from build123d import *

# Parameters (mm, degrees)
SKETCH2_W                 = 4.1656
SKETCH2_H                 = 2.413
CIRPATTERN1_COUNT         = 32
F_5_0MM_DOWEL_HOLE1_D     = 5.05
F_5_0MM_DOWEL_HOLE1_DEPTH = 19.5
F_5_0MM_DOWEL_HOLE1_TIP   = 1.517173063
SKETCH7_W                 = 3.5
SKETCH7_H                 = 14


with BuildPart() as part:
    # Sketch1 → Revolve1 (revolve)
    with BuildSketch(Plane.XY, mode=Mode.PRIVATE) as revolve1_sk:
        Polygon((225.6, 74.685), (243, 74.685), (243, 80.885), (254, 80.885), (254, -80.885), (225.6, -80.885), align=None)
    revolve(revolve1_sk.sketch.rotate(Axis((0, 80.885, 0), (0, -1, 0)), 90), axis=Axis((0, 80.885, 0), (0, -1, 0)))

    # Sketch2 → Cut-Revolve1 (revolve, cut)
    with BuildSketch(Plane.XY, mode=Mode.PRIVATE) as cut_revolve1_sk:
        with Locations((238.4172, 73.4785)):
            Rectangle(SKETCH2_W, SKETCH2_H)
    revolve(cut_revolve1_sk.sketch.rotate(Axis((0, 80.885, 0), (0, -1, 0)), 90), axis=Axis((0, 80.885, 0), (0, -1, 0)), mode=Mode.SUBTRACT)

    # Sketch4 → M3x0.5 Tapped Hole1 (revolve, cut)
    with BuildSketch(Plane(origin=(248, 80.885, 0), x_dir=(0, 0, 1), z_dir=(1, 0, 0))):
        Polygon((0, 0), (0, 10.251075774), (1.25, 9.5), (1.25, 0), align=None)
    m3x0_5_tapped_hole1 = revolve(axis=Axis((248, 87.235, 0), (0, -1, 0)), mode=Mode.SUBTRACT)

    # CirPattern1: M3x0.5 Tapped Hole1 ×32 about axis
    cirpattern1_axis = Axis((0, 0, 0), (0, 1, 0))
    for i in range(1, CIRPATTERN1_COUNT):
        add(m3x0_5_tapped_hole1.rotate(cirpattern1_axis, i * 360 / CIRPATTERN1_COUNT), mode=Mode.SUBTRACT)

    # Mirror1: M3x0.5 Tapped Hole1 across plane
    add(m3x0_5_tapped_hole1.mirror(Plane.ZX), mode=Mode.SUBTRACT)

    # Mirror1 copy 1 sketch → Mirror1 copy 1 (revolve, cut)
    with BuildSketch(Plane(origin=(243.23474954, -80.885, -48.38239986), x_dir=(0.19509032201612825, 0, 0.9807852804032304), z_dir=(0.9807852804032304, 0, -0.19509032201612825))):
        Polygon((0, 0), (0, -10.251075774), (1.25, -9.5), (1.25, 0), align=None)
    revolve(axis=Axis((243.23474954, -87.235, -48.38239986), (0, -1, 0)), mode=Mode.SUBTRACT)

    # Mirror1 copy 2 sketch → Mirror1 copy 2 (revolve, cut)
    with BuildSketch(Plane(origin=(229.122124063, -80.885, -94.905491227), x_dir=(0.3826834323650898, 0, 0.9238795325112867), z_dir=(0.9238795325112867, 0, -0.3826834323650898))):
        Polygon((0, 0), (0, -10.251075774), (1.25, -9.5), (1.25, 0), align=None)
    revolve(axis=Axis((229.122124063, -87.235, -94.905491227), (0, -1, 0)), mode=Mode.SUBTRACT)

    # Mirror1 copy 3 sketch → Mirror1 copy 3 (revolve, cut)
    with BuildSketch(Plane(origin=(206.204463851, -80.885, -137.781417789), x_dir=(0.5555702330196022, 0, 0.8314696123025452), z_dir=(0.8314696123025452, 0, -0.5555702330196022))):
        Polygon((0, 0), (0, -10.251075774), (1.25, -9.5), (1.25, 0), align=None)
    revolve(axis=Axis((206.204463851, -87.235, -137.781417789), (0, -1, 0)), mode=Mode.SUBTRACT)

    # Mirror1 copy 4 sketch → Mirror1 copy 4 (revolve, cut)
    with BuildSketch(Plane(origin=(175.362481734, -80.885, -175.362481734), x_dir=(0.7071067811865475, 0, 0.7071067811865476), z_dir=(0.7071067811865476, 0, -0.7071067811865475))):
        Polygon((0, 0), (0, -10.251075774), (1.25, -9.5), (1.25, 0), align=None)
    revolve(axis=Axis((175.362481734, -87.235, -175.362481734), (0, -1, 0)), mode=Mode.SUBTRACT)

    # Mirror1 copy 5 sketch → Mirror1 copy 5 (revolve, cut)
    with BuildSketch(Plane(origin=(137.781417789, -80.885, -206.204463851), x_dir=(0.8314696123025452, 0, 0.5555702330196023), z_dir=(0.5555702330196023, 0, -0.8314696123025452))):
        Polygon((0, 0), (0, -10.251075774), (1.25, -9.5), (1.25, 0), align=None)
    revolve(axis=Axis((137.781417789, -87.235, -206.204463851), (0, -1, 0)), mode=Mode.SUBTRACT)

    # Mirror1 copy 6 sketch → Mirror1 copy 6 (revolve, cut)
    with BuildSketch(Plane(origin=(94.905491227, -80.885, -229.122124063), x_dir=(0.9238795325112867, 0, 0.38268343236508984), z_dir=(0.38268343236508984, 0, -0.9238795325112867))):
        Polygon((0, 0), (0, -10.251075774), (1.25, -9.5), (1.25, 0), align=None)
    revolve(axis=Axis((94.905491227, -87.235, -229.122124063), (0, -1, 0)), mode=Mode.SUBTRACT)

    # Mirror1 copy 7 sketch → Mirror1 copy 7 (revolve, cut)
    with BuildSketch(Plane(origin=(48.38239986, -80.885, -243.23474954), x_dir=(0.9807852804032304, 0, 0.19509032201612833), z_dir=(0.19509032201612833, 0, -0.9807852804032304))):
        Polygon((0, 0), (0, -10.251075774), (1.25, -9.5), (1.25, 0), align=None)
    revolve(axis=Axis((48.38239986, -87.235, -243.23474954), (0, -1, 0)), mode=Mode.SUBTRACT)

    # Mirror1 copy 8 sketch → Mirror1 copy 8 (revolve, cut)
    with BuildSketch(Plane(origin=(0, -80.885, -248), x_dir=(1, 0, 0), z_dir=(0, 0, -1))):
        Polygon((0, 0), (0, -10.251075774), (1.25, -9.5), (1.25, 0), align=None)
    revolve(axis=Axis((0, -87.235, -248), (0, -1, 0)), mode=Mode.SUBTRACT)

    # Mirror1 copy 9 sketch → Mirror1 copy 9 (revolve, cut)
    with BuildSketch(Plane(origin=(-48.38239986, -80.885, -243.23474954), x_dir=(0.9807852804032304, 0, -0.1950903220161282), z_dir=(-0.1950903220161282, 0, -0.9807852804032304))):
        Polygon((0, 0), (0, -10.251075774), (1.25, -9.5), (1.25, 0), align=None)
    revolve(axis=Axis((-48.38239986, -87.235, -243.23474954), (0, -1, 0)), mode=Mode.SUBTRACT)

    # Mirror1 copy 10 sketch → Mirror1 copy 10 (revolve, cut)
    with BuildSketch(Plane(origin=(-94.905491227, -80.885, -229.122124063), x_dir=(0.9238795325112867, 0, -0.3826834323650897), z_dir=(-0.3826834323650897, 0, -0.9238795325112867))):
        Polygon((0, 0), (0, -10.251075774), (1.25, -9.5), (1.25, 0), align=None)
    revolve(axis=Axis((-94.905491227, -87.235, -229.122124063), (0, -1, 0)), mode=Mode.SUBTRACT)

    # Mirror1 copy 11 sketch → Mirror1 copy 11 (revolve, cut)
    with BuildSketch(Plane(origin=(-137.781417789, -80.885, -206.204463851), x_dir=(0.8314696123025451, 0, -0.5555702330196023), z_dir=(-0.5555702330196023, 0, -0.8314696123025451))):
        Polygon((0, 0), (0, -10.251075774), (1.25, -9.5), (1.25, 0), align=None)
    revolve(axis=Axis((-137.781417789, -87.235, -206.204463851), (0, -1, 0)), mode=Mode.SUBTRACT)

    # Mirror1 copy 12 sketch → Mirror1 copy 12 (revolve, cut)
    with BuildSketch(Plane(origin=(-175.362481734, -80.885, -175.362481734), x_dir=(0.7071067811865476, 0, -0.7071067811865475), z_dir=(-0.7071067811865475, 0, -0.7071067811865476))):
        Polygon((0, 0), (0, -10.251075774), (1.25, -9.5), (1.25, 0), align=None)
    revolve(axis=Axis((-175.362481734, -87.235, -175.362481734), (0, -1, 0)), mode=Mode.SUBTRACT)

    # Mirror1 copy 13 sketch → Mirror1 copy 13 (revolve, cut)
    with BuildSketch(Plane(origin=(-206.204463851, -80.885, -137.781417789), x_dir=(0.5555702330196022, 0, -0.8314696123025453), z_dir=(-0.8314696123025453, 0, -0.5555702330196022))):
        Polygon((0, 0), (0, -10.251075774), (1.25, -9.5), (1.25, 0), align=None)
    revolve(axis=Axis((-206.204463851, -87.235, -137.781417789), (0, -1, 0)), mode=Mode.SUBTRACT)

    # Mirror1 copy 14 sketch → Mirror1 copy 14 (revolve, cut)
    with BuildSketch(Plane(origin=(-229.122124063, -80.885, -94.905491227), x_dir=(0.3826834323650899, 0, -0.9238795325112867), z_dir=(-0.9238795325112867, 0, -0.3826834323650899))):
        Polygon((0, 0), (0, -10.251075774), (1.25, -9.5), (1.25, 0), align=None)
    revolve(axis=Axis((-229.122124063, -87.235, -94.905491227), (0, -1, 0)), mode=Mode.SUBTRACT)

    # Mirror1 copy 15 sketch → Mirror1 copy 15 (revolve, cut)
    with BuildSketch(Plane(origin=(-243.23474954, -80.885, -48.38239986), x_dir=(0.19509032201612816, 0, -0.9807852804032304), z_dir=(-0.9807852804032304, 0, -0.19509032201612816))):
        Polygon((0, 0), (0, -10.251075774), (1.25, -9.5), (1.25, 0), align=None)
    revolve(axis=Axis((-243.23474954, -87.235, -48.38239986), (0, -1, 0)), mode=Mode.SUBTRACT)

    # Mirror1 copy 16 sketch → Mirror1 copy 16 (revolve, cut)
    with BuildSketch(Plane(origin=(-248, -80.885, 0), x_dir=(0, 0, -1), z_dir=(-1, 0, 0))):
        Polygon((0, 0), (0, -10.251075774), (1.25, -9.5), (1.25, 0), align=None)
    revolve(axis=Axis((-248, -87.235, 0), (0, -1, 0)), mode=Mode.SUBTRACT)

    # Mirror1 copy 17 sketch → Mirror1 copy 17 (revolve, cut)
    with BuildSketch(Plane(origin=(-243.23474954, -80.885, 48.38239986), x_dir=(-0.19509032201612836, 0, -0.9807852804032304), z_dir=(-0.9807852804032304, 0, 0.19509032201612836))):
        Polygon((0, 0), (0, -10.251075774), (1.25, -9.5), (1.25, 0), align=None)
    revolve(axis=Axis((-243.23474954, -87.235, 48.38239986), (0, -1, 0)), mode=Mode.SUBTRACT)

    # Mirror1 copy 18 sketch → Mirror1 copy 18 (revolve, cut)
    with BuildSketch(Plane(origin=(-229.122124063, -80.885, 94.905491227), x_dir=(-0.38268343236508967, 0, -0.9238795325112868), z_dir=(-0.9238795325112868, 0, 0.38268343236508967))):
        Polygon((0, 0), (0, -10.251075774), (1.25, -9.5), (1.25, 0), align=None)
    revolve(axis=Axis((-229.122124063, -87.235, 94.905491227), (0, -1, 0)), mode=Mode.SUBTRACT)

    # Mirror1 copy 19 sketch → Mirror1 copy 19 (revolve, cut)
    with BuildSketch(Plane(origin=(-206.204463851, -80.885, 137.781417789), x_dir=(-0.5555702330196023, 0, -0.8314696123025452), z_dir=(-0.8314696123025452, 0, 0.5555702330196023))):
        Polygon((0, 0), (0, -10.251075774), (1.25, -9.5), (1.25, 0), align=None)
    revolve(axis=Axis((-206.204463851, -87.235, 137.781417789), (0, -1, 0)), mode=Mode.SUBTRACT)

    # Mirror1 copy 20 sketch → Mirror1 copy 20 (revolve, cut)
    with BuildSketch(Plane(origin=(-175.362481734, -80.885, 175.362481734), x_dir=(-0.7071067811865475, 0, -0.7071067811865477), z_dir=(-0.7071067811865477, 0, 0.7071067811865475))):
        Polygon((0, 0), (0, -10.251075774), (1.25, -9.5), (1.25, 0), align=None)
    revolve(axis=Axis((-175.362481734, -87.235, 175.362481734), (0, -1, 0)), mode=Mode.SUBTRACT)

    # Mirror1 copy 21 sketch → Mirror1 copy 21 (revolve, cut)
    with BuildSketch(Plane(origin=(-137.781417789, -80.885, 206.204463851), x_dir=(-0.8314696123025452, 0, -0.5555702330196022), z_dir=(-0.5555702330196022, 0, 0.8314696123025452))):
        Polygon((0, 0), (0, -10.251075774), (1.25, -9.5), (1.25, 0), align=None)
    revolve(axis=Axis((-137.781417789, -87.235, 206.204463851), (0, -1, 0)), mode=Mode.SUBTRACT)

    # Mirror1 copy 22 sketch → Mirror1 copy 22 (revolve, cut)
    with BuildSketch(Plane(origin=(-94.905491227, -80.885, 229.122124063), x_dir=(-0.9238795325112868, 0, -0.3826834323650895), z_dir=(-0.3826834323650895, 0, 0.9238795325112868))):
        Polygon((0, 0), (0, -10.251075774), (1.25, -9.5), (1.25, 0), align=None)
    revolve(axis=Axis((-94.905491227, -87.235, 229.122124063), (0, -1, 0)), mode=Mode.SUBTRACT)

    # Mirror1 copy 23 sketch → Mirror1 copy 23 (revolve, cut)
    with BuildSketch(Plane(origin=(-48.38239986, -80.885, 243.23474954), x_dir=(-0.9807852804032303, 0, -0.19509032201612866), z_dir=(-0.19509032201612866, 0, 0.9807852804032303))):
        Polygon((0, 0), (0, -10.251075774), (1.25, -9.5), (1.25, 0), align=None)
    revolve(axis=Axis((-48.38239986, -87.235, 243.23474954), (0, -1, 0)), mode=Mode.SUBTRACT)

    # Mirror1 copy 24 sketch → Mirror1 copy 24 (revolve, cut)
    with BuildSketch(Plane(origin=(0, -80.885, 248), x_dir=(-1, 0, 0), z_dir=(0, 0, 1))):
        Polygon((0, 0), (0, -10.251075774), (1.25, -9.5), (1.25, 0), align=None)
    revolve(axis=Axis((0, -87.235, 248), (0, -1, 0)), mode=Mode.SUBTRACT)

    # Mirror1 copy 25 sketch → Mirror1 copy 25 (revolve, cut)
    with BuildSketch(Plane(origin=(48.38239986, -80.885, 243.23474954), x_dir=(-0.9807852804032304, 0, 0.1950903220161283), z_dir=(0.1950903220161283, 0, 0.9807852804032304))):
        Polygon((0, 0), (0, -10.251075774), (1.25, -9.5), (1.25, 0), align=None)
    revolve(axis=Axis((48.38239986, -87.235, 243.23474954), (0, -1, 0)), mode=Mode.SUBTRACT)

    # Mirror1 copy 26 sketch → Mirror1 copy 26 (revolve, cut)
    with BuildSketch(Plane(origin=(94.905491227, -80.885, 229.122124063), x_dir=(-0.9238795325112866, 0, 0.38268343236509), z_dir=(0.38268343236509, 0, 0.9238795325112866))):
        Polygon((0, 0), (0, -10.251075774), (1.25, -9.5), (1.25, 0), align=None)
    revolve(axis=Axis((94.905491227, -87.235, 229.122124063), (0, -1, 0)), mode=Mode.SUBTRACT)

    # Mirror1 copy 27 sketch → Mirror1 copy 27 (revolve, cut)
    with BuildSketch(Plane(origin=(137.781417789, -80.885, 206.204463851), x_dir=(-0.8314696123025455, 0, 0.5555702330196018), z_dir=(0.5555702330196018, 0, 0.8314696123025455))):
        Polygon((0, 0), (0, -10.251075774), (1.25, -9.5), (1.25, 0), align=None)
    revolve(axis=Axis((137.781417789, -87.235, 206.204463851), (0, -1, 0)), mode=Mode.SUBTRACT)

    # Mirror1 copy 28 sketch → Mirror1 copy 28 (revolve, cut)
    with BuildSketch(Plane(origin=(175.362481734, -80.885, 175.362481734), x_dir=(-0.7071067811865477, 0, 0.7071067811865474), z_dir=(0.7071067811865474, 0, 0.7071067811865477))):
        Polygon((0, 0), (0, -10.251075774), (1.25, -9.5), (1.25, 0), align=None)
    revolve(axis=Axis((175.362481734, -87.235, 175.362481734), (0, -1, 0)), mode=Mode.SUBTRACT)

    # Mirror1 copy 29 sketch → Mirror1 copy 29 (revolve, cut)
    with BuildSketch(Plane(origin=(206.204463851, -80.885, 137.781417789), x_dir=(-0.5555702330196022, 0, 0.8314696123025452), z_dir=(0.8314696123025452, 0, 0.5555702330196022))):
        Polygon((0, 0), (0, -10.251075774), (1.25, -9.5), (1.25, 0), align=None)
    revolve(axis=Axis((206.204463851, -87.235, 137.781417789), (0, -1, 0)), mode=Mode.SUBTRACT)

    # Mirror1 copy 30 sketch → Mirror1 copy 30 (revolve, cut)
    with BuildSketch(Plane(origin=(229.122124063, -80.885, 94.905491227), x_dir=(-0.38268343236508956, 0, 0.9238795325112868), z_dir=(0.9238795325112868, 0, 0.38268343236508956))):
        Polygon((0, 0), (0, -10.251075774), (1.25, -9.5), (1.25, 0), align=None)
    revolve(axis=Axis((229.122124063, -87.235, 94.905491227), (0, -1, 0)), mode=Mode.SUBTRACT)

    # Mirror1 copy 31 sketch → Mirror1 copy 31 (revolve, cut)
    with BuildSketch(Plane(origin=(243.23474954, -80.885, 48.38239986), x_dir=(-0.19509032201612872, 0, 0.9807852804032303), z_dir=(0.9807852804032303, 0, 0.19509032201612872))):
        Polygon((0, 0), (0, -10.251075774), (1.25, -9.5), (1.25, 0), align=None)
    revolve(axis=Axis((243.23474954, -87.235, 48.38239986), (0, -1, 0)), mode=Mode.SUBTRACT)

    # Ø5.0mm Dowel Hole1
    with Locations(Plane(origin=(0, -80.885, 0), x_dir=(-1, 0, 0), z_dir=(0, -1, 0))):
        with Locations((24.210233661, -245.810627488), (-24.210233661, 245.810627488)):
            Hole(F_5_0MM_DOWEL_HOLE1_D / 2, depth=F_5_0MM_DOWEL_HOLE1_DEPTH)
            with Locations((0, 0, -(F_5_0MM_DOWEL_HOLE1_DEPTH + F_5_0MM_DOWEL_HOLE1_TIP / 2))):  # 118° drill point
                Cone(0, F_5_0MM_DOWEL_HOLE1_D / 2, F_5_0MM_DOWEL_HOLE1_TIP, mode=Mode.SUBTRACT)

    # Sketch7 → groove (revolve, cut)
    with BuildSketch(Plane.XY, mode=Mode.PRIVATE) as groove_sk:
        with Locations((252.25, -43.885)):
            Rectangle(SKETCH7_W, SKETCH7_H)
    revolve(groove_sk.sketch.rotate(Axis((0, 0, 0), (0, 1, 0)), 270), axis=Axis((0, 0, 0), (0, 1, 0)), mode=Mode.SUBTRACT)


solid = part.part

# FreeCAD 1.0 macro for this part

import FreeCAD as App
import Part
import Sketcher
from FreeCAD import Vector
Q = App.Units.Quantity


def add_polygon(sketch, points):
    """Adds a closed chain of lines whose ends are joined by coincident constraints."""
    first, n = sketch.GeometryCount, len(points)
    for a, b in zip(points, points[1:] + points[:1]):
        sketch.addGeometry(Part.LineSegment(App.Vector(*a, 0), App.Vector(*b, 0)), False)
    for i in range(n):
        sketch.addConstraint(Sketcher.Constraint("Coincident", first + i, 2, first + (i + 1) % n, 1))

doc = App.newDocument("Part")
body = doc.addObject("PartDesign::Body", "Body")

# Sketch on XY plane
sketch1 = body.newObject("Sketcher::SketchObject", "Sketch")
sketch1.AttachmentSupport = (doc.getObject("XY_Plane"), [""])
sketch1.MapMode = "FlatFace"
add_polygon(sketch1, [(243, 75), (226, 75), (226, -81), (254, -81), (254, 81), (243, 81)])  # lines 0-5
sketch1.addConstraint([
    Sketcher.Constraint("Horizontal", 0),
    Sketcher.Constraint("Vertical", 1),
    Sketcher.Constraint("Horizontal", 2),
    Sketcher.Constraint("Vertical", 3),
    Sketcher.Constraint("Horizontal", 4),
    Sketcher.Constraint("Vertical", 5),
    Sketcher.Constraint("DistanceX", 4, 2, 4, 1, Q("11 mm")),
    Sketcher.Constraint("DistanceX", 0, 2, 0, 1, Q("17.4 mm")),
    Sketcher.Constraint("DistanceY", 5, 2, 5, 1, Q("6.2 mm")),
    Sketcher.Constraint("DistanceX", -1, 1, 2, 2, Q("254 mm")),
    Sketcher.Constraint("DistanceY", 1, 2, 1, 1, Q("155.57 mm")),
    Sketcher.Constraint("DistanceY", -1, 1, 0, 2, Q("74.685 mm")),
])
revolution = body.newObject("PartDesign::Revolution", "Revolution")
revolution.Profile = sketch1
revolution.ReferenceAxis = (sketch1, ["V_Axis"])
revolution.Angle = 360

# Sketch on XY plane
sketch2 = body.newObject("Sketcher::SketchObject", "Sketch001")
sketch2.AttachmentSupport = (doc.getObject("XY_Plane"), [""])
sketch2.MapMode = "FlatFace"
add_polygon(sketch2, [(236.3, 74.7), (236.3, 72.3), (240.5, 72.3), (240.5, 74.7)])  # lines 0-3
sketch2.addConstraint([
    Sketcher.Constraint("Vertical", 0),
    Sketcher.Constraint("Horizontal", 1),
    Sketcher.Constraint("Vertical", 2),
    Sketcher.Constraint("Horizontal", 3),
    Sketcher.Constraint("DistanceX", -1, 1, 1, 2, Q("240.5 mm")),
    Sketcher.Constraint("DistanceY", 0, 2, 0, 1, Q("2.413 mm")),
    Sketcher.Constraint("DistanceX", 1, 1, 1, 2, Q("4.1656 mm")),
    Sketcher.Constraint("DistanceY", -1, 1, 0, 2, Q("72.272 mm")),
])
groove = body.newObject("PartDesign::Groove", "Groove")
groove.Profile = sketch2
groove.ReferenceAxis = (sketch2, ["V_Axis"])
groove.Angle = 360

# Sketch on YZ plane
sketch3 = body.newObject("Sketcher::SketchObject", "Sketch002")
sketch3.AttachmentSupport = (doc.getObject("YZ_Plane"), [""])
sketch3.MapMode = "FlatFace"
sketch3.AttachmentOffset = App.Placement(Vector(0, 0, 248), App.Rotation())
add_polygon(sketch3, [(70.6, 0), (80.9, 0), (80.9, 1.2), (71.4, 1.2)])  # lines 0-3
sketch3.addConstraint([
    Sketcher.Constraint("Horizontal", 0),
    Sketcher.Constraint("Vertical", 1),
    Sketcher.Constraint("Horizontal", 2),
    Sketcher.Constraint("PointOnObject", 0, 2, -1),
    Sketcher.Constraint("Angle", 3, Q("-121 deg")),
    Sketcher.Constraint("DistanceX", 2, 2, 2, 1, Q("9.5 mm")),
    Sketcher.Constraint("DistanceY", 1, 1, 1, 2, Q("1.25 mm")),
    Sketcher.Constraint("DistanceX", -1, 1, 0, 2, Q("80.885 mm")),
])
groove2 = body.newObject("PartDesign::Groove", "Groove001")
groove2.Profile = sketch3
groove2.ReferenceAxis = (sketch3, ["H_Axis"])
groove2.Angle = 360
doc.recompute()

polarpattern = body.newObject("PartDesign::PolarPattern", "PolarPattern")
polarpattern.Originals = [groove2]
polarpattern.Axis = (doc.getObject("Y_Axis"), [""])
polarpattern.Angle = 360
polarpattern.Occurrences = 32
body.Tip = polarpattern
doc.recompute()

mirrored = body.newObject("PartDesign::Mirrored", "Mirrored")
mirrored.Originals = [groove2]
mirrored.MirrorPlane = (doc.getObject("XZ_Plane"), [""])
body.Tip = mirrored

# Sketch on an angled plane
sketch4 = body.newObject("Sketcher::SketchObject", "Sketch003")
sketch4.Placement = App.Placement(Vector(243.23475, -80.885, -48.3824), App.Rotation(Vector(0.195090322, 0, 0.98078528), Vector(0, -0.999999999, 0), Vector(0.98078528, 0, -0.195090322), "ZXY"))
add_polygon(sketch4, [(0, 0), (0, -10.3), (1.2, -9.5), (1.2, 0)])  # lines 0-3
sketch4.addConstraint([
    Sketcher.Constraint("Vertical", 0),
    Sketcher.Constraint("Vertical", 2),
    Sketcher.Constraint("Horizontal", 3),
    Sketcher.Constraint("Coincident", 3, 2, -1, 1),
    Sketcher.Constraint("Angle", 1, Q("31 deg")),
    Sketcher.Constraint("DistanceY", 2, 1, 2, 2, Q("9.5 mm")),
    Sketcher.Constraint("DistanceX", 3, 2, 3, 1, Q("1.25 mm")),
])
groove3 = body.newObject("PartDesign::Groove", "Groove002")
groove3.Profile = sketch4
groove3.ReferenceAxis = (sketch4, ["V_Axis"])
groove3.Angle = 360

# Sketch on an angled plane
sketch5 = body.newObject("Sketcher::SketchObject", "Sketch004")
sketch5.Placement = App.Placement(Vector(229.122124, -80.885, -94.905491), App.Rotation(Vector(0.382683432, 0, 0.923879533), Vector(0, -1.000000001, 0), Vector(0.923879533, 0, -0.382683432), "ZXY"))
add_polygon(sketch5, [(0, 0), (0, -10.3), (1.3, -9.5), (1.3, 0)])  # lines 0-3
sketch5.addConstraint([
    Sketcher.Constraint("Vertical", 0),
    Sketcher.Constraint("Vertical", 2),
    Sketcher.Constraint("Horizontal", 3),
    Sketcher.Constraint("Coincident", 3, 2, -1, 1),
    Sketcher.Constraint("Angle", 1, Q("31 deg")),
    Sketcher.Constraint("DistanceY", 2, 1, 2, 2, Q("9.5 mm")),
    Sketcher.Constraint("DistanceX", 3, 2, 3, 1, Q("1.25 mm")),
])
groove4 = body.newObject("PartDesign::Groove", "Groove003")
groove4.Profile = sketch5
groove4.ReferenceAxis = (sketch5, ["V_Axis"])
groove4.Angle = 360

# Sketch on an angled plane
sketch6 = body.newObject("Sketcher::SketchObject", "Sketch005")
sketch6.Placement = App.Placement(Vector(206.204464, -80.885, -137.781418), App.Rotation(Vector(0.555570233, 0, 0.831469612), Vector(0, -0.999999999, 0), Vector(0.831469612, 0, -0.555570233), "ZXY"))
add_polygon(sketch6, [(0, 0), (0, -10.3), (1.2, -9.5), (1.2, 0)])  # lines 0-3
sketch6.addConstraint([
    Sketcher.Constraint("Vertical", 0),
    Sketcher.Constraint("Vertical", 2),
    Sketcher.Constraint("Horizontal", 3),
    Sketcher.Constraint("Coincident", 3, 2, -1, 1),
    Sketcher.Constraint("Angle", 1, Q("31 deg")),
    Sketcher.Constraint("DistanceY", 2, 1, 2, 2, Q("9.5 mm")),
    Sketcher.Constraint("DistanceX", 3, 2, 3, 1, Q("1.25 mm")),
])
groove5 = body.newObject("PartDesign::Groove", "Groove004")
groove5.Profile = sketch6
groove5.ReferenceAxis = (sketch6, ["V_Axis"])
groove5.Angle = 360

# Sketch on an angled plane
sketch7 = body.newObject("Sketcher::SketchObject", "Sketch006")
sketch7.Placement = App.Placement(Vector(175.362482, -80.885, -175.362482), App.Rotation(Vector(0.707106781, 0, 0.707106781), Vector(0, -0.999999999, 0), Vector(0.707106781, 0, -0.707106781), "ZXY"))
add_polygon(sketch7, [(0, 0), (0, -10.3), (1.2, -9.5), (1.2, 0)])  # lines 0-3
sketch7.addConstraint([
    Sketcher.Constraint("Vertical", 0),
    Sketcher.Constraint("Vertical", 2),
    Sketcher.Constraint("Horizontal", 3),
    Sketcher.Constraint("Coincident", 3, 2, -1, 1),
    Sketcher.Constraint("Angle", 1, Q("31 deg")),
    Sketcher.Constraint("DistanceY", 2, 1, 2, 2, Q("9.5 mm")),
    Sketcher.Constraint("DistanceX", 3, 2, 3, 1, Q("1.25 mm")),
])
groove6 = body.newObject("PartDesign::Groove", "Groove005")
groove6.Profile = sketch7
groove6.ReferenceAxis = (sketch7, ["V_Axis"])
groove6.Angle = 360

# Sketch on an angled plane
sketch8 = body.newObject("Sketcher::SketchObject", "Sketch007")
sketch8.Placement = App.Placement(Vector(137.781418, -80.885, -206.204464), App.Rotation(Vector(0.831469612, 0, 0.555570233), Vector(0, -0.999999999, 0), Vector(0.555570233, 0, -0.831469612), "ZXY"))
add_polygon(sketch8, [(0, 0), (0, -10.3), (1.2, -9.5), (1.2, 0)])  # lines 0-3
sketch8.addConstraint([
    Sketcher.Constraint("Vertical", 0),
    Sketcher.Constraint("Vertical", 2),
    Sketcher.Constraint("Horizontal", 3),
    Sketcher.Constraint("Coincident", 3, 2, -1, 1),
    Sketcher.Constraint("Angle", 1, Q("31 deg")),
    Sketcher.Constraint("DistanceY", 2, 1, 2, 2, Q("9.5 mm")),
    Sketcher.Constraint("DistanceX", 3, 2, 3, 1, Q("1.25 mm")),
])
groove7 = body.newObject("PartDesign::Groove", "Groove006")
groove7.Profile = sketch8
groove7.ReferenceAxis = (sketch8, ["V_Axis"])
groove7.Angle = 360

# Sketch on an angled plane
sketch9 = body.newObject("Sketcher::SketchObject", "Sketch008")
sketch9.Placement = App.Placement(Vector(94.905491, -80.885, -229.122124), App.Rotation(Vector(0.923879533, 0, 0.382683432), Vector(0, -1.000000001, 0), Vector(0.382683432, 0, -0.923879533), "ZXY"))
add_polygon(sketch9, [(0, 0), (0, -10.3), (1.3, -9.5), (1.3, 0)])  # lines 0-3
sketch9.addConstraint([
    Sketcher.Constraint("Vertical", 0),
    Sketcher.Constraint("Vertical", 2),
    Sketcher.Constraint("Horizontal", 3),
    Sketcher.Constraint("Coincident", 3, 2, -1, 1),
    Sketcher.Constraint("Angle", 1, Q("31 deg")),
    Sketcher.Constraint("DistanceY", 2, 1, 2, 2, Q("9.5 mm")),
    Sketcher.Constraint("DistanceX", 3, 2, 3, 1, Q("1.25 mm")),
])
groove8 = body.newObject("PartDesign::Groove", "Groove007")
groove8.Profile = sketch9
groove8.ReferenceAxis = (sketch9, ["V_Axis"])
groove8.Angle = 360

# Sketch on an angled plane
sketch10 = body.newObject("Sketcher::SketchObject", "Sketch009")
sketch10.Placement = App.Placement(Vector(48.3824, -80.885, -243.23475), App.Rotation(Vector(0.98078528, 0, 0.195090322), Vector(0, -0.999999999, 0), Vector(0.195090322, 0, -0.98078528), "ZXY"))
add_polygon(sketch10, [(0, 0), (0, -10.3), (1.2, -9.5), (1.2, 0)])  # lines 0-3
sketch10.addConstraint([
    Sketcher.Constraint("Vertical", 0),
    Sketcher.Constraint("Vertical", 2),
    Sketcher.Constraint("Horizontal", 3),
    Sketcher.Constraint("Coincident", 3, 2, -1, 1),
    Sketcher.Constraint("Angle", 1, Q("31 deg")),
    Sketcher.Constraint("DistanceY", 2, 1, 2, 2, Q("9.5 mm")),
    Sketcher.Constraint("DistanceX", 3, 2, 3, 1, Q("1.25 mm")),
])
groove9 = body.newObject("PartDesign::Groove", "Groove008")
groove9.Profile = sketch10
groove9.ReferenceAxis = (sketch10, ["V_Axis"])
groove9.Angle = 360

# Sketch on XY plane
sketch11 = body.newObject("Sketcher::SketchObject", "Sketch010")
sketch11.AttachmentSupport = (doc.getObject("XY_Plane"), [""])
sketch11.MapMode = "FlatFace"
sketch11.AttachmentOffset = App.Placement(Vector(0, 0, -248), App.Rotation())
add_polygon(sketch11, [(0, -80.9), (0, -70.6), (1.2, -71.4), (1.2, -80.9)])  # lines 0-3
sketch11.addConstraint([
    Sketcher.Constraint("Vertical", 0),
    Sketcher.Constraint("Vertical", 2),
    Sketcher.Constraint("Horizontal", 3),
    Sketcher.Constraint("PointOnObject", 0, 2, -2),
    Sketcher.Constraint("Angle", 1, Q("-31 deg")),
    Sketcher.Constraint("DistanceY", 2, 2, 2, 1, Q("9.5 mm")),
    Sketcher.Constraint("DistanceX", 3, 2, 3, 1, Q("1.25 mm")),
    Sketcher.Constraint("DistanceY", 1, 2, -1, 1, Q("71.385 mm")),
])
groove10 = body.newObject("PartDesign::Groove", "Groove009")
groove10.Profile = sketch11
groove10.ReferenceAxis = (sketch11, ["V_Axis"])
groove10.Angle = 360

# Sketch on an angled plane
sketch12 = body.newObject("Sketcher::SketchObject", "Sketch011")
sketch12.Placement = App.Placement(Vector(-48.3824, -80.885, -243.23475), App.Rotation(Vector(0.98078528, 0, -0.195090322), Vector(0, -0.999999999, 0), Vector(-0.195090322, 0, -0.98078528), "ZXY"))
add_polygon(sketch12, [(0, 0), (0, -10.3), (1.2, -9.5), (1.2, 0)])  # lines 0-3
sketch12.addConstraint([
    Sketcher.Constraint("Vertical", 0),
    Sketcher.Constraint("Vertical", 2),
    Sketcher.Constraint("Horizontal", 3),
    Sketcher.Constraint("Coincident", 3, 2, -1, 1),
    Sketcher.Constraint("Angle", 1, Q("31 deg")),
    Sketcher.Constraint("DistanceY", 2, 1, 2, 2, Q("9.5 mm")),
    Sketcher.Constraint("DistanceX", 3, 2, 3, 1, Q("1.25 mm")),
])
groove11 = body.newObject("PartDesign::Groove", "Groove010")
groove11.Profile = sketch12
groove11.ReferenceAxis = (sketch12, ["V_Axis"])
groove11.Angle = 360

# Sketch on an angled plane
sketch13 = body.newObject("Sketcher::SketchObject", "Sketch012")
sketch13.Placement = App.Placement(Vector(-94.905491, -80.885, -229.122124), App.Rotation(Vector(0.923879533, 0, -0.382683432), Vector(0, -1.000000001, 0), Vector(-0.382683432, 0, -0.923879533), "ZXY"))
add_polygon(sketch13, [(0, 0), (0, -10.3), (1.3, -9.5), (1.3, 0)])  # lines 0-3
sketch13.addConstraint([
    Sketcher.Constraint("Vertical", 0),
    Sketcher.Constraint("Vertical", 2),
    Sketcher.Constraint("Horizontal", 3),
    Sketcher.Constraint("Coincident", 3, 2, -1, 1),
    Sketcher.Constraint("Angle", 1, Q("31 deg")),
    Sketcher.Constraint("DistanceY", 2, 1, 2, 2, Q("9.5 mm")),
    Sketcher.Constraint("DistanceX", 3, 2, 3, 1, Q("1.25 mm")),
])
groove12 = body.newObject("PartDesign::Groove", "Groove011")
groove12.Profile = sketch13
groove12.ReferenceAxis = (sketch13, ["V_Axis"])
groove12.Angle = 360

# Sketch on an angled plane
sketch14 = body.newObject("Sketcher::SketchObject", "Sketch013")
sketch14.Placement = App.Placement(Vector(-137.781418, -80.885, -206.204464), App.Rotation(Vector(0.831469612, 0, -0.555570233), Vector(0, -0.999999999, 0), Vector(-0.555570233, 0, -0.831469612), "ZXY"))
add_polygon(sketch14, [(0, 0), (0, -10.3), (1.2, -9.5), (1.2, 0)])  # lines 0-3
sketch14.addConstraint([
    Sketcher.Constraint("Vertical", 0),
    Sketcher.Constraint("Vertical", 2),
    Sketcher.Constraint("Horizontal", 3),
    Sketcher.Constraint("Coincident", 3, 2, -1, 1),
    Sketcher.Constraint("Angle", 1, Q("31 deg")),
    Sketcher.Constraint("DistanceY", 2, 1, 2, 2, Q("9.5 mm")),
    Sketcher.Constraint("DistanceX", 3, 2, 3, 1, Q("1.25 mm")),
])
groove13 = body.newObject("PartDesign::Groove", "Groove012")
groove13.Profile = sketch14
groove13.ReferenceAxis = (sketch14, ["V_Axis"])
groove13.Angle = 360

# Sketch on an angled plane
sketch15 = body.newObject("Sketcher::SketchObject", "Sketch014")
sketch15.Placement = App.Placement(Vector(-175.362482, -80.885, -175.362482), App.Rotation(Vector(0.707106781, 0, -0.707106781), Vector(0, -0.999999999, 0), Vector(-0.707106781, 0, -0.707106781), "ZXY"))
add_polygon(sketch15, [(0, 0), (0, -10.3), (1.2, -9.5), (1.2, 0)])  # lines 0-3
sketch15.addConstraint([
    Sketcher.Constraint("Vertical", 0),
    Sketcher.Constraint("Vertical", 2),
    Sketcher.Constraint("Horizontal", 3),
    Sketcher.Constraint("Coincident", 3, 2, -1, 1),
    Sketcher.Constraint("Angle", 1, Q("31 deg")),
    Sketcher.Constraint("DistanceY", 2, 1, 2, 2, Q("9.5 mm")),
    Sketcher.Constraint("DistanceX", 3, 2, 3, 1, Q("1.25 mm")),
])
groove14 = body.newObject("PartDesign::Groove", "Groove013")
groove14.Profile = sketch15
groove14.ReferenceAxis = (sketch15, ["V_Axis"])
groove14.Angle = 360

# Sketch on an angled plane
sketch16 = body.newObject("Sketcher::SketchObject", "Sketch015")
sketch16.Placement = App.Placement(Vector(-206.204464, -80.885, -137.781418), App.Rotation(Vector(0.555570233, 0, -0.831469612), Vector(0, -0.999999999, 0), Vector(-0.831469612, 0, -0.555570233), "ZXY"))
add_polygon(sketch16, [(0, 0), (0, -10.3), (1.2, -9.5), (1.2, 0)])  # lines 0-3
sketch16.addConstraint([
    Sketcher.Constraint("Vertical", 0),
    Sketcher.Constraint("Vertical", 2),
    Sketcher.Constraint("Horizontal", 3),
    Sketcher.Constraint("Coincident", 3, 2, -1, 1),
    Sketcher.Constraint("Angle", 1, Q("31 deg")),
    Sketcher.Constraint("DistanceY", 2, 1, 2, 2, Q("9.5 mm")),
    Sketcher.Constraint("DistanceX", 3, 2, 3, 1, Q("1.25 mm")),
])
groove15 = body.newObject("PartDesign::Groove", "Groove014")
groove15.Profile = sketch16
groove15.ReferenceAxis = (sketch16, ["V_Axis"])
groove15.Angle = 360

# Sketch on an angled plane
sketch17 = body.newObject("Sketcher::SketchObject", "Sketch016")
sketch17.Placement = App.Placement(Vector(-229.122124, -80.885, -94.905491), App.Rotation(Vector(0.382683432, 0, -0.923879533), Vector(0, -1.000000001, 0), Vector(-0.923879533, 0, -0.382683432), "ZXY"))
add_polygon(sketch17, [(0, 0), (0, -10.3), (1.3, -9.5), (1.3, 0)])  # lines 0-3
sketch17.addConstraint([
    Sketcher.Constraint("Vertical", 0),
    Sketcher.Constraint("Vertical", 2),
    Sketcher.Constraint("Horizontal", 3),
    Sketcher.Constraint("Coincident", 3, 2, -1, 1),
    Sketcher.Constraint("Angle", 1, Q("31 deg")),
    Sketcher.Constraint("DistanceY", 2, 1, 2, 2, Q("9.5 mm")),
    Sketcher.Constraint("DistanceX", 3, 2, 3, 1, Q("1.25 mm")),
])
groove16 = body.newObject("PartDesign::Groove", "Groove015")
groove16.Profile = sketch17
groove16.ReferenceAxis = (sketch17, ["V_Axis"])
groove16.Angle = 360

# Sketch on an angled plane
sketch18 = body.newObject("Sketcher::SketchObject", "Sketch017")
sketch18.Placement = App.Placement(Vector(-243.23475, -80.885, -48.3824), App.Rotation(Vector(0.195090322, 0, -0.98078528), Vector(0, -0.999999999, 0), Vector(-0.98078528, 0, -0.195090322), "ZXY"))
add_polygon(sketch18, [(0, 0), (0, -10.3), (1.2, -9.5), (1.2, 0)])  # lines 0-3
sketch18.addConstraint([
    Sketcher.Constraint("Vertical", 0),
    Sketcher.Constraint("Vertical", 2),
    Sketcher.Constraint("Horizontal", 3),
    Sketcher.Constraint("Coincident", 3, 2, -1, 1),
    Sketcher.Constraint("Angle", 1, Q("31 deg")),
    Sketcher.Constraint("DistanceY", 2, 1, 2, 2, Q("9.5 mm")),
    Sketcher.Constraint("DistanceX", 3, 2, 3, 1, Q("1.25 mm")),
])
groove17 = body.newObject("PartDesign::Groove", "Groove016")
groove17.Profile = sketch18
groove17.ReferenceAxis = (sketch18, ["V_Axis"])
groove17.Angle = 360

# Sketch on YZ plane
sketch19 = body.newObject("Sketcher::SketchObject", "Sketch018")
sketch19.AttachmentSupport = (doc.getObject("YZ_Plane"), [""])
sketch19.MapMode = "FlatFace"
sketch19.AttachmentOffset = App.Placement(Vector(0, 0, -248), App.Rotation())
add_polygon(sketch19, [(-80.9, 0), (-70.6, 0), (-71.4, -1.2), (-80.9, -1.2)])  # lines 0-3
sketch19.addConstraint([
    Sketcher.Constraint("Horizontal", 0),
    Sketcher.Constraint("Horizontal", 2),
    Sketcher.Constraint("Vertical", 3),
    Sketcher.Constraint("PointOnObject", 0, 2, -1),
    Sketcher.Constraint("Angle", 1, Q("-121 deg")),
    Sketcher.Constraint("DistanceX", 2, 2, 2, 1, Q("9.5 mm")),
    Sketcher.Constraint("DistanceY", 3, 1, 3, 2, Q("1.25 mm")),
    Sketcher.Constraint("DistanceX", 1, 2, -1, 1, Q("71.385 mm")),
])
groove18 = body.newObject("PartDesign::Groove", "Groove017")
groove18.Profile = sketch19
groove18.ReferenceAxis = (sketch19, ["H_Axis"])
groove18.Angle = 360

# Sketch on an angled plane
sketch20 = body.newObject("Sketcher::SketchObject", "Sketch019")
sketch20.Placement = App.Placement(Vector(-243.23475, -80.885, 48.3824), App.Rotation(Vector(-0.195090322, 0, -0.98078528), Vector(0, -0.999999999, 0), Vector(-0.98078528, 0, 0.195090322), "ZXY"))
add_polygon(sketch20, [(0, 0), (0, -10.3), (1.2, -9.5), (1.2, 0)])  # lines 0-3
sketch20.addConstraint([
    Sketcher.Constraint("Vertical", 0),
    Sketcher.Constraint("Vertical", 2),
    Sketcher.Constraint("Horizontal", 3),
    Sketcher.Constraint("Coincident", 3, 2, -1, 1),
    Sketcher.Constraint("Angle", 1, Q("31 deg")),
    Sketcher.Constraint("DistanceY", 2, 1, 2, 2, Q("9.5 mm")),
    Sketcher.Constraint("DistanceX", 3, 2, 3, 1, Q("1.25 mm")),
])
groove19 = body.newObject("PartDesign::Groove", "Groove018")
groove19.Profile = sketch20
groove19.ReferenceAxis = (sketch20, ["V_Axis"])
groove19.Angle = 360

# Sketch on an angled plane
sketch21 = body.newObject("Sketcher::SketchObject", "Sketch020")
sketch21.Placement = App.Placement(Vector(-229.122124, -80.885, 94.905491), App.Rotation(Vector(-0.382683432, 0, -0.923879533), Vector(0, -1.000000001, 0), Vector(-0.923879533, 0, 0.382683432), "ZXY"))
add_polygon(sketch21, [(0, 0), (0, -10.3), (1.3, -9.5), (1.3, 0)])  # lines 0-3
sketch21.addConstraint([
    Sketcher.Constraint("Vertical", 0),
    Sketcher.Constraint("Vertical", 2),
    Sketcher.Constraint("Horizontal", 3),
    Sketcher.Constraint("Coincident", 3, 2, -1, 1),
    Sketcher.Constraint("Angle", 1, Q("31 deg")),
    Sketcher.Constraint("DistanceY", 2, 1, 2, 2, Q("9.5 mm")),
    Sketcher.Constraint("DistanceX", 3, 2, 3, 1, Q("1.25 mm")),
])
groove20 = body.newObject("PartDesign::Groove", "Groove019")
groove20.Profile = sketch21
groove20.ReferenceAxis = (sketch21, ["V_Axis"])
groove20.Angle = 360

# Sketch on an angled plane
sketch22 = body.newObject("Sketcher::SketchObject", "Sketch021")
sketch22.Placement = App.Placement(Vector(-206.204464, -80.885, 137.781418), App.Rotation(Vector(-0.555570233, 0, -0.831469612), Vector(0, -0.999999999, 0), Vector(-0.831469612, 0, 0.555570233), "ZXY"))
add_polygon(sketch22, [(0, 0), (0, -10.3), (1.2, -9.5), (1.2, 0)])  # lines 0-3
sketch22.addConstraint([
    Sketcher.Constraint("Vertical", 0),
    Sketcher.Constraint("Vertical", 2),
    Sketcher.Constraint("Horizontal", 3),
    Sketcher.Constraint("Coincident", 3, 2, -1, 1),
    Sketcher.Constraint("Angle", 1, Q("31 deg")),
    Sketcher.Constraint("DistanceY", 2, 1, 2, 2, Q("9.5 mm")),
    Sketcher.Constraint("DistanceX", 3, 2, 3, 1, Q("1.25 mm")),
])
groove21 = body.newObject("PartDesign::Groove", "Groove020")
groove21.Profile = sketch22
groove21.ReferenceAxis = (sketch22, ["V_Axis"])
groove21.Angle = 360

# Sketch on an angled plane
sketch23 = body.newObject("Sketcher::SketchObject", "Sketch022")
sketch23.Placement = App.Placement(Vector(-175.362482, -80.885, 175.362482), App.Rotation(Vector(-0.707106781, 0, -0.707106781), Vector(0, -0.999999999, 0), Vector(-0.707106781, 0, 0.707106781), "ZXY"))
add_polygon(sketch23, [(0, 0), (0, -10.3), (1.2, -9.5), (1.2, 0)])  # lines 0-3
sketch23.addConstraint([
    Sketcher.Constraint("Vertical", 0),
    Sketcher.Constraint("Vertical", 2),
    Sketcher.Constraint("Horizontal", 3),
    Sketcher.Constraint("Coincident", 3, 2, -1, 1),
    Sketcher.Constraint("Angle", 1, Q("31 deg")),
    Sketcher.Constraint("DistanceY", 2, 1, 2, 2, Q("9.5 mm")),
    Sketcher.Constraint("DistanceX", 3, 2, 3, 1, Q("1.25 mm")),
])
groove22 = body.newObject("PartDesign::Groove", "Groove021")
groove22.Profile = sketch23
groove22.ReferenceAxis = (sketch23, ["V_Axis"])
groove22.Angle = 360

# Sketch on an angled plane
sketch24 = body.newObject("Sketcher::SketchObject", "Sketch023")
sketch24.Placement = App.Placement(Vector(-137.781418, -80.885, 206.204464), App.Rotation(Vector(-0.831469612, 0, -0.555570233), Vector(0, -0.999999999, 0), Vector(-0.555570233, 0, 0.831469612), "ZXY"))
add_polygon(sketch24, [(0, 0), (0, -10.3), (1.2, -9.5), (1.2, 0)])  # lines 0-3
sketch24.addConstraint([
    Sketcher.Constraint("Vertical", 0),
    Sketcher.Constraint("Vertical", 2),
    Sketcher.Constraint("Horizontal", 3),
    Sketcher.Constraint("Coincident", 3, 2, -1, 1),
    Sketcher.Constraint("Angle", 1, Q("31 deg")),
    Sketcher.Constraint("DistanceY", 2, 1, 2, 2, Q("9.5 mm")),
    Sketcher.Constraint("DistanceX", 3, 2, 3, 1, Q("1.25 mm")),
])
groove23 = body.newObject("PartDesign::Groove", "Groove022")
groove23.Profile = sketch24
groove23.ReferenceAxis = (sketch24, ["V_Axis"])
groove23.Angle = 360

# Sketch on an angled plane
sketch25 = body.newObject("Sketcher::SketchObject", "Sketch024")
sketch25.Placement = App.Placement(Vector(-94.905491, -80.885, 229.122124), App.Rotation(Vector(-0.923879533, 0, -0.382683432), Vector(0, -1.000000001, 0), Vector(-0.382683432, 0, 0.923879533), "ZXY"))
add_polygon(sketch25, [(0, 0), (0, -10.3), (1.3, -9.5), (1.3, 0)])  # lines 0-3
sketch25.addConstraint([
    Sketcher.Constraint("Vertical", 0),
    Sketcher.Constraint("Vertical", 2),
    Sketcher.Constraint("Horizontal", 3),
    Sketcher.Constraint("Coincident", 3, 2, -1, 1),
    Sketcher.Constraint("Angle", 1, Q("31 deg")),
    Sketcher.Constraint("DistanceY", 2, 1, 2, 2, Q("9.5 mm")),
    Sketcher.Constraint("DistanceX", 3, 2, 3, 1, Q("1.25 mm")),
])
groove24 = body.newObject("PartDesign::Groove", "Groove023")
groove24.Profile = sketch25
groove24.ReferenceAxis = (sketch25, ["V_Axis"])
groove24.Angle = 360

# Sketch on an angled plane
sketch26 = body.newObject("Sketcher::SketchObject", "Sketch025")
sketch26.Placement = App.Placement(Vector(-48.3824, -80.885, 243.23475), App.Rotation(Vector(-0.98078528, 0, -0.195090322), Vector(0, -0.999999999, 0), Vector(-0.195090322, 0, 0.98078528), "ZXY"))
add_polygon(sketch26, [(0, 0), (0, -10.3), (1.2, -9.5), (1.2, 0)])  # lines 0-3
sketch26.addConstraint([
    Sketcher.Constraint("Vertical", 0),
    Sketcher.Constraint("Vertical", 2),
    Sketcher.Constraint("Horizontal", 3),
    Sketcher.Constraint("Coincident", 3, 2, -1, 1),
    Sketcher.Constraint("Angle", 1, Q("31 deg")),
    Sketcher.Constraint("DistanceY", 2, 1, 2, 2, Q("9.5 mm")),
    Sketcher.Constraint("DistanceX", 3, 2, 3, 1, Q("1.25 mm")),
])
groove25 = body.newObject("PartDesign::Groove", "Groove024")
groove25.Profile = sketch26
groove25.ReferenceAxis = (sketch26, ["V_Axis"])
groove25.Angle = 360

# Sketch on XY plane
sketch27 = body.newObject("Sketcher::SketchObject", "Sketch026")
sketch27.AttachmentSupport = (doc.getObject("XY_Plane"), [""])
sketch27.MapMode = "FlatFace"
sketch27.AttachmentOffset = App.Placement(Vector(0, 0, 248), App.Rotation())
add_polygon(sketch27, [(0, -80.9), (0, -70.6), (-1.2, -71.4), (-1.2, -80.9)])  # lines 0-3
sketch27.addConstraint([
    Sketcher.Constraint("Vertical", 0),
    Sketcher.Constraint("Vertical", 2),
    Sketcher.Constraint("Horizontal", 3),
    Sketcher.Constraint("PointOnObject", 0, 2, -2),
    Sketcher.Constraint("Angle", 1, Q("-149 deg")),
    Sketcher.Constraint("DistanceY", 2, 2, 2, 1, Q("9.5 mm")),
    Sketcher.Constraint("DistanceX", 3, 1, 3, 2, Q("1.25 mm")),
    Sketcher.Constraint("DistanceY", 1, 2, -1, 1, Q("71.385 mm")),
])
groove26 = body.newObject("PartDesign::Groove", "Groove025")
groove26.Profile = sketch27
groove26.ReferenceAxis = (sketch27, ["V_Axis"])
groove26.Angle = 360

# Sketch on an angled plane
sketch28 = body.newObject("Sketcher::SketchObject", "Sketch027")
sketch28.Placement = App.Placement(Vector(48.3824, -80.885, 243.23475), App.Rotation(Vector(-0.98078528, 0, 0.195090322), Vector(0, -0.999999999, 0), Vector(0.195090322, 0, 0.98078528), "ZXY"))
add_polygon(sketch28, [(0, 0), (0, -10.3), (1.2, -9.5), (1.2, 0)])  # lines 0-3
sketch28.addConstraint([
    Sketcher.Constraint("Vertical", 0),
    Sketcher.Constraint("Vertical", 2),
    Sketcher.Constraint("Horizontal", 3),
    Sketcher.Constraint("Coincident", 3, 2, -1, 1),
    Sketcher.Constraint("Angle", 1, Q("31 deg")),
    Sketcher.Constraint("DistanceY", 2, 1, 2, 2, Q("9.5 mm")),
    Sketcher.Constraint("DistanceX", 3, 2, 3, 1, Q("1.25 mm")),
])
groove27 = body.newObject("PartDesign::Groove", "Groove026")
groove27.Profile = sketch28
groove27.ReferenceAxis = (sketch28, ["V_Axis"])
groove27.Angle = 360

# Sketch on an angled plane
sketch29 = body.newObject("Sketcher::SketchObject", "Sketch028")
sketch29.Placement = App.Placement(Vector(94.905491, -80.885, 229.122124), App.Rotation(Vector(-0.923879533, 0, 0.382683432), Vector(0, -1.000000001, 0), Vector(0.382683432, 0, 0.923879533), "ZXY"))
add_polygon(sketch29, [(0, 0), (0, -10.3), (1.3, -9.5), (1.3, 0)])  # lines 0-3
sketch29.addConstraint([
    Sketcher.Constraint("Vertical", 0),
    Sketcher.Constraint("Vertical", 2),
    Sketcher.Constraint("Horizontal", 3),
    Sketcher.Constraint("Coincident", 3, 2, -1, 1),
    Sketcher.Constraint("Angle", 1, Q("31 deg")),
    Sketcher.Constraint("DistanceY", 2, 1, 2, 2, Q("9.5 mm")),
    Sketcher.Constraint("DistanceX", 3, 2, 3, 1, Q("1.25 mm")),
])
groove28 = body.newObject("PartDesign::Groove", "Groove027")
groove28.Profile = sketch29
groove28.ReferenceAxis = (sketch29, ["V_Axis"])
groove28.Angle = 360

# Sketch on an angled plane
sketch30 = body.newObject("Sketcher::SketchObject", "Sketch029")
sketch30.Placement = App.Placement(Vector(137.781418, -80.885, 206.204464), App.Rotation(Vector(-0.831469612, 0, 0.555570233), Vector(0, -0.999999999, 0), Vector(0.555570233, 0, 0.831469612), "ZXY"))
add_polygon(sketch30, [(0, 0), (0, -10.3), (1.2, -9.5), (1.2, 0)])  # lines 0-3
sketch30.addConstraint([
    Sketcher.Constraint("Vertical", 0),
    Sketcher.Constraint("Vertical", 2),
    Sketcher.Constraint("Horizontal", 3),
    Sketcher.Constraint("Coincident", 3, 2, -1, 1),
    Sketcher.Constraint("Angle", 1, Q("31 deg")),
    Sketcher.Constraint("DistanceY", 2, 1, 2, 2, Q("9.5 mm")),
    Sketcher.Constraint("DistanceX", 3, 2, 3, 1, Q("1.25 mm")),
])
groove29 = body.newObject("PartDesign::Groove", "Groove028")
groove29.Profile = sketch30
groove29.ReferenceAxis = (sketch30, ["V_Axis"])
groove29.Angle = 360

# Sketch on an angled plane
sketch31 = body.newObject("Sketcher::SketchObject", "Sketch030")
sketch31.Placement = App.Placement(Vector(175.362482, -80.885, 175.362482), App.Rotation(Vector(-0.707106781, 0, 0.707106781), Vector(0, -0.999999999, 0), Vector(0.707106781, 0, 0.707106781), "ZXY"))
add_polygon(sketch31, [(0, 0), (0, -10.3), (1.2, -9.5), (1.2, 0)])  # lines 0-3
sketch31.addConstraint([
    Sketcher.Constraint("Vertical", 0),
    Sketcher.Constraint("Vertical", 2),
    Sketcher.Constraint("Horizontal", 3),
    Sketcher.Constraint("Coincident", 3, 2, -1, 1),
    Sketcher.Constraint("Angle", 1, Q("31 deg")),
    Sketcher.Constraint("DistanceY", 2, 1, 2, 2, Q("9.5 mm")),
    Sketcher.Constraint("DistanceX", 3, 2, 3, 1, Q("1.25 mm")),
])
groove30 = body.newObject("PartDesign::Groove", "Groove029")
groove30.Profile = sketch31
groove30.ReferenceAxis = (sketch31, ["V_Axis"])
groove30.Angle = 360

# Sketch on an angled plane
sketch32 = body.newObject("Sketcher::SketchObject", "Sketch031")
sketch32.Placement = App.Placement(Vector(206.204464, -80.885, 137.781418), App.Rotation(Vector(-0.555570233, 0, 0.831469612), Vector(0, -0.999999999, 0), Vector(0.831469612, 0, 0.555570233), "ZXY"))
add_polygon(sketch32, [(0, 0), (0, -10.3), (1.2, -9.5), (1.2, 0)])  # lines 0-3
sketch32.addConstraint([
    Sketcher.Constraint("Vertical", 0),
    Sketcher.Constraint("Vertical", 2),
    Sketcher.Constraint("Horizontal", 3),
    Sketcher.Constraint("Coincident", 3, 2, -1, 1),
    Sketcher.Constraint("Angle", 1, Q("31 deg")),
    Sketcher.Constraint("DistanceY", 2, 1, 2, 2, Q("9.5 mm")),
    Sketcher.Constraint("DistanceX", 3, 2, 3, 1, Q("1.25 mm")),
])
groove31 = body.newObject("PartDesign::Groove", "Groove030")
groove31.Profile = sketch32
groove31.ReferenceAxis = (sketch32, ["V_Axis"])
groove31.Angle = 360

# Sketch on an angled plane
sketch33 = body.newObject("Sketcher::SketchObject", "Sketch032")
sketch33.Placement = App.Placement(Vector(229.122124, -80.885, 94.905491), App.Rotation(Vector(-0.382683432, 0, 0.923879533), Vector(0, -1.000000001, 0), Vector(0.923879533, 0, 0.382683432), "ZXY"))
add_polygon(sketch33, [(0, 0), (0, -10.3), (1.3, -9.5), (1.3, 0)])  # lines 0-3
sketch33.addConstraint([
    Sketcher.Constraint("Vertical", 0),
    Sketcher.Constraint("Vertical", 2),
    Sketcher.Constraint("Horizontal", 3),
    Sketcher.Constraint("Coincident", 3, 2, -1, 1),
    Sketcher.Constraint("Angle", 1, Q("31 deg")),
    Sketcher.Constraint("DistanceY", 2, 1, 2, 2, Q("9.5 mm")),
    Sketcher.Constraint("DistanceX", 3, 2, 3, 1, Q("1.25 mm")),
])
groove32 = body.newObject("PartDesign::Groove", "Groove031")
groove32.Profile = sketch33
groove32.ReferenceAxis = (sketch33, ["V_Axis"])
groove32.Angle = 360

# Sketch on an angled plane
sketch34 = body.newObject("Sketcher::SketchObject", "Sketch033")
sketch34.Placement = App.Placement(Vector(243.23475, -80.885, 48.3824), App.Rotation(Vector(-0.195090322, 0, 0.98078528), Vector(0, -0.999999999, 0), Vector(0.98078528, 0, 0.195090322), "ZXY"))
add_polygon(sketch34, [(0, 0), (0, -10.3), (1.2, -9.5), (1.2, 0)])  # lines 0-3
sketch34.addConstraint([
    Sketcher.Constraint("Vertical", 0),
    Sketcher.Constraint("Vertical", 2),
    Sketcher.Constraint("Horizontal", 3),
    Sketcher.Constraint("Coincident", 3, 2, -1, 1),
    Sketcher.Constraint("Angle", 1, Q("31 deg")),
    Sketcher.Constraint("DistanceY", 2, 1, 2, 2, Q("9.5 mm")),
    Sketcher.Constraint("DistanceX", 3, 2, 3, 1, Q("1.25 mm")),
])
groove33 = body.newObject("PartDesign::Groove", "Groove032")
groove33.Profile = sketch34
groove33.ReferenceAxis = (sketch34, ["V_Axis"])
groove33.Angle = 360

# Sketch on XZ plane
sketch35 = body.newObject("Sketcher::SketchObject", "Sketch034")
sketch35.AttachmentSupport = (doc.getObject("XZ_Plane"), [""])
sketch35.MapMode = "FlatFace"
sketch35.AttachmentOffset = App.Placement(Vector(0, 0, 80.885), App.Rotation())
sketch35.addGeometry([
    Part.Circle(Vector(-24.2, 245.8, 0), Vector(0, 0, 1), 2.5),
    Part.Circle(Vector(24.2, -245.8, 0), Vector(0, 0, 1), 2.5),
], False)
sketch35.addConstraint([
    Sketcher.Constraint("Equal", 0, 1),
    Sketcher.Constraint("Symmetric", 0, 3, 1, 3, -1, 1),
    Sketcher.Constraint("Diameter", 0, Q("5.05 mm")),
    Sketcher.Constraint("DistanceX", 0, 3, -1, 1, Q("24.210234 mm")),
    Sketcher.Constraint("DistanceY", -1, 1, 0, 3, Q("245.810627 mm")),
])
doc.recompute()
hole = body.newObject("PartDesign::Hole", "Hole")
hole.Profile = sketch35
hole.ThreadType = "None"
hole.Diameter = 5.05
hole.DepthType = "Dimension"
hole.Depth = 19.5
hole.DrillPoint = "Angled"
hole.DrillPointAngle = 118

# Sketch on XY plane
sketch36 = body.newObject("Sketcher::SketchObject", "Sketch035")
sketch36.AttachmentSupport = (doc.getObject("XY_Plane"), [""])
sketch36.MapMode = "FlatFace"
add_polygon(sketch36, [(250.5, -36.9), (250.5, -50.9), (254, -50.9), (254, -36.9)])  # lines 0-3
sketch36.addConstraint([
    Sketcher.Constraint("Vertical", 0),
    Sketcher.Constraint("Horizontal", 1),
    Sketcher.Constraint("Vertical", 2),
    Sketcher.Constraint("Horizontal", 3),
    Sketcher.Constraint("DistanceY", 0, 2, 0, 1, Q("14 mm")),
    Sketcher.Constraint("DistanceX", 1, 1, 1, 2, Q("3.5 mm")),
    Sketcher.Constraint("DistanceX", -1, 1, 1, 2, Q("254 mm")),
    Sketcher.Constraint("DistanceY", 0, 2, -1, 1, Q("50.885 mm")),
])
groove34 = body.newObject("PartDesign::Groove", "Groove033")
groove34.Profile = sketch36
groove34.ReferenceAxis = (sketch36, ["V_Axis"])
groove34.Angle = 360

doc.recompute()
